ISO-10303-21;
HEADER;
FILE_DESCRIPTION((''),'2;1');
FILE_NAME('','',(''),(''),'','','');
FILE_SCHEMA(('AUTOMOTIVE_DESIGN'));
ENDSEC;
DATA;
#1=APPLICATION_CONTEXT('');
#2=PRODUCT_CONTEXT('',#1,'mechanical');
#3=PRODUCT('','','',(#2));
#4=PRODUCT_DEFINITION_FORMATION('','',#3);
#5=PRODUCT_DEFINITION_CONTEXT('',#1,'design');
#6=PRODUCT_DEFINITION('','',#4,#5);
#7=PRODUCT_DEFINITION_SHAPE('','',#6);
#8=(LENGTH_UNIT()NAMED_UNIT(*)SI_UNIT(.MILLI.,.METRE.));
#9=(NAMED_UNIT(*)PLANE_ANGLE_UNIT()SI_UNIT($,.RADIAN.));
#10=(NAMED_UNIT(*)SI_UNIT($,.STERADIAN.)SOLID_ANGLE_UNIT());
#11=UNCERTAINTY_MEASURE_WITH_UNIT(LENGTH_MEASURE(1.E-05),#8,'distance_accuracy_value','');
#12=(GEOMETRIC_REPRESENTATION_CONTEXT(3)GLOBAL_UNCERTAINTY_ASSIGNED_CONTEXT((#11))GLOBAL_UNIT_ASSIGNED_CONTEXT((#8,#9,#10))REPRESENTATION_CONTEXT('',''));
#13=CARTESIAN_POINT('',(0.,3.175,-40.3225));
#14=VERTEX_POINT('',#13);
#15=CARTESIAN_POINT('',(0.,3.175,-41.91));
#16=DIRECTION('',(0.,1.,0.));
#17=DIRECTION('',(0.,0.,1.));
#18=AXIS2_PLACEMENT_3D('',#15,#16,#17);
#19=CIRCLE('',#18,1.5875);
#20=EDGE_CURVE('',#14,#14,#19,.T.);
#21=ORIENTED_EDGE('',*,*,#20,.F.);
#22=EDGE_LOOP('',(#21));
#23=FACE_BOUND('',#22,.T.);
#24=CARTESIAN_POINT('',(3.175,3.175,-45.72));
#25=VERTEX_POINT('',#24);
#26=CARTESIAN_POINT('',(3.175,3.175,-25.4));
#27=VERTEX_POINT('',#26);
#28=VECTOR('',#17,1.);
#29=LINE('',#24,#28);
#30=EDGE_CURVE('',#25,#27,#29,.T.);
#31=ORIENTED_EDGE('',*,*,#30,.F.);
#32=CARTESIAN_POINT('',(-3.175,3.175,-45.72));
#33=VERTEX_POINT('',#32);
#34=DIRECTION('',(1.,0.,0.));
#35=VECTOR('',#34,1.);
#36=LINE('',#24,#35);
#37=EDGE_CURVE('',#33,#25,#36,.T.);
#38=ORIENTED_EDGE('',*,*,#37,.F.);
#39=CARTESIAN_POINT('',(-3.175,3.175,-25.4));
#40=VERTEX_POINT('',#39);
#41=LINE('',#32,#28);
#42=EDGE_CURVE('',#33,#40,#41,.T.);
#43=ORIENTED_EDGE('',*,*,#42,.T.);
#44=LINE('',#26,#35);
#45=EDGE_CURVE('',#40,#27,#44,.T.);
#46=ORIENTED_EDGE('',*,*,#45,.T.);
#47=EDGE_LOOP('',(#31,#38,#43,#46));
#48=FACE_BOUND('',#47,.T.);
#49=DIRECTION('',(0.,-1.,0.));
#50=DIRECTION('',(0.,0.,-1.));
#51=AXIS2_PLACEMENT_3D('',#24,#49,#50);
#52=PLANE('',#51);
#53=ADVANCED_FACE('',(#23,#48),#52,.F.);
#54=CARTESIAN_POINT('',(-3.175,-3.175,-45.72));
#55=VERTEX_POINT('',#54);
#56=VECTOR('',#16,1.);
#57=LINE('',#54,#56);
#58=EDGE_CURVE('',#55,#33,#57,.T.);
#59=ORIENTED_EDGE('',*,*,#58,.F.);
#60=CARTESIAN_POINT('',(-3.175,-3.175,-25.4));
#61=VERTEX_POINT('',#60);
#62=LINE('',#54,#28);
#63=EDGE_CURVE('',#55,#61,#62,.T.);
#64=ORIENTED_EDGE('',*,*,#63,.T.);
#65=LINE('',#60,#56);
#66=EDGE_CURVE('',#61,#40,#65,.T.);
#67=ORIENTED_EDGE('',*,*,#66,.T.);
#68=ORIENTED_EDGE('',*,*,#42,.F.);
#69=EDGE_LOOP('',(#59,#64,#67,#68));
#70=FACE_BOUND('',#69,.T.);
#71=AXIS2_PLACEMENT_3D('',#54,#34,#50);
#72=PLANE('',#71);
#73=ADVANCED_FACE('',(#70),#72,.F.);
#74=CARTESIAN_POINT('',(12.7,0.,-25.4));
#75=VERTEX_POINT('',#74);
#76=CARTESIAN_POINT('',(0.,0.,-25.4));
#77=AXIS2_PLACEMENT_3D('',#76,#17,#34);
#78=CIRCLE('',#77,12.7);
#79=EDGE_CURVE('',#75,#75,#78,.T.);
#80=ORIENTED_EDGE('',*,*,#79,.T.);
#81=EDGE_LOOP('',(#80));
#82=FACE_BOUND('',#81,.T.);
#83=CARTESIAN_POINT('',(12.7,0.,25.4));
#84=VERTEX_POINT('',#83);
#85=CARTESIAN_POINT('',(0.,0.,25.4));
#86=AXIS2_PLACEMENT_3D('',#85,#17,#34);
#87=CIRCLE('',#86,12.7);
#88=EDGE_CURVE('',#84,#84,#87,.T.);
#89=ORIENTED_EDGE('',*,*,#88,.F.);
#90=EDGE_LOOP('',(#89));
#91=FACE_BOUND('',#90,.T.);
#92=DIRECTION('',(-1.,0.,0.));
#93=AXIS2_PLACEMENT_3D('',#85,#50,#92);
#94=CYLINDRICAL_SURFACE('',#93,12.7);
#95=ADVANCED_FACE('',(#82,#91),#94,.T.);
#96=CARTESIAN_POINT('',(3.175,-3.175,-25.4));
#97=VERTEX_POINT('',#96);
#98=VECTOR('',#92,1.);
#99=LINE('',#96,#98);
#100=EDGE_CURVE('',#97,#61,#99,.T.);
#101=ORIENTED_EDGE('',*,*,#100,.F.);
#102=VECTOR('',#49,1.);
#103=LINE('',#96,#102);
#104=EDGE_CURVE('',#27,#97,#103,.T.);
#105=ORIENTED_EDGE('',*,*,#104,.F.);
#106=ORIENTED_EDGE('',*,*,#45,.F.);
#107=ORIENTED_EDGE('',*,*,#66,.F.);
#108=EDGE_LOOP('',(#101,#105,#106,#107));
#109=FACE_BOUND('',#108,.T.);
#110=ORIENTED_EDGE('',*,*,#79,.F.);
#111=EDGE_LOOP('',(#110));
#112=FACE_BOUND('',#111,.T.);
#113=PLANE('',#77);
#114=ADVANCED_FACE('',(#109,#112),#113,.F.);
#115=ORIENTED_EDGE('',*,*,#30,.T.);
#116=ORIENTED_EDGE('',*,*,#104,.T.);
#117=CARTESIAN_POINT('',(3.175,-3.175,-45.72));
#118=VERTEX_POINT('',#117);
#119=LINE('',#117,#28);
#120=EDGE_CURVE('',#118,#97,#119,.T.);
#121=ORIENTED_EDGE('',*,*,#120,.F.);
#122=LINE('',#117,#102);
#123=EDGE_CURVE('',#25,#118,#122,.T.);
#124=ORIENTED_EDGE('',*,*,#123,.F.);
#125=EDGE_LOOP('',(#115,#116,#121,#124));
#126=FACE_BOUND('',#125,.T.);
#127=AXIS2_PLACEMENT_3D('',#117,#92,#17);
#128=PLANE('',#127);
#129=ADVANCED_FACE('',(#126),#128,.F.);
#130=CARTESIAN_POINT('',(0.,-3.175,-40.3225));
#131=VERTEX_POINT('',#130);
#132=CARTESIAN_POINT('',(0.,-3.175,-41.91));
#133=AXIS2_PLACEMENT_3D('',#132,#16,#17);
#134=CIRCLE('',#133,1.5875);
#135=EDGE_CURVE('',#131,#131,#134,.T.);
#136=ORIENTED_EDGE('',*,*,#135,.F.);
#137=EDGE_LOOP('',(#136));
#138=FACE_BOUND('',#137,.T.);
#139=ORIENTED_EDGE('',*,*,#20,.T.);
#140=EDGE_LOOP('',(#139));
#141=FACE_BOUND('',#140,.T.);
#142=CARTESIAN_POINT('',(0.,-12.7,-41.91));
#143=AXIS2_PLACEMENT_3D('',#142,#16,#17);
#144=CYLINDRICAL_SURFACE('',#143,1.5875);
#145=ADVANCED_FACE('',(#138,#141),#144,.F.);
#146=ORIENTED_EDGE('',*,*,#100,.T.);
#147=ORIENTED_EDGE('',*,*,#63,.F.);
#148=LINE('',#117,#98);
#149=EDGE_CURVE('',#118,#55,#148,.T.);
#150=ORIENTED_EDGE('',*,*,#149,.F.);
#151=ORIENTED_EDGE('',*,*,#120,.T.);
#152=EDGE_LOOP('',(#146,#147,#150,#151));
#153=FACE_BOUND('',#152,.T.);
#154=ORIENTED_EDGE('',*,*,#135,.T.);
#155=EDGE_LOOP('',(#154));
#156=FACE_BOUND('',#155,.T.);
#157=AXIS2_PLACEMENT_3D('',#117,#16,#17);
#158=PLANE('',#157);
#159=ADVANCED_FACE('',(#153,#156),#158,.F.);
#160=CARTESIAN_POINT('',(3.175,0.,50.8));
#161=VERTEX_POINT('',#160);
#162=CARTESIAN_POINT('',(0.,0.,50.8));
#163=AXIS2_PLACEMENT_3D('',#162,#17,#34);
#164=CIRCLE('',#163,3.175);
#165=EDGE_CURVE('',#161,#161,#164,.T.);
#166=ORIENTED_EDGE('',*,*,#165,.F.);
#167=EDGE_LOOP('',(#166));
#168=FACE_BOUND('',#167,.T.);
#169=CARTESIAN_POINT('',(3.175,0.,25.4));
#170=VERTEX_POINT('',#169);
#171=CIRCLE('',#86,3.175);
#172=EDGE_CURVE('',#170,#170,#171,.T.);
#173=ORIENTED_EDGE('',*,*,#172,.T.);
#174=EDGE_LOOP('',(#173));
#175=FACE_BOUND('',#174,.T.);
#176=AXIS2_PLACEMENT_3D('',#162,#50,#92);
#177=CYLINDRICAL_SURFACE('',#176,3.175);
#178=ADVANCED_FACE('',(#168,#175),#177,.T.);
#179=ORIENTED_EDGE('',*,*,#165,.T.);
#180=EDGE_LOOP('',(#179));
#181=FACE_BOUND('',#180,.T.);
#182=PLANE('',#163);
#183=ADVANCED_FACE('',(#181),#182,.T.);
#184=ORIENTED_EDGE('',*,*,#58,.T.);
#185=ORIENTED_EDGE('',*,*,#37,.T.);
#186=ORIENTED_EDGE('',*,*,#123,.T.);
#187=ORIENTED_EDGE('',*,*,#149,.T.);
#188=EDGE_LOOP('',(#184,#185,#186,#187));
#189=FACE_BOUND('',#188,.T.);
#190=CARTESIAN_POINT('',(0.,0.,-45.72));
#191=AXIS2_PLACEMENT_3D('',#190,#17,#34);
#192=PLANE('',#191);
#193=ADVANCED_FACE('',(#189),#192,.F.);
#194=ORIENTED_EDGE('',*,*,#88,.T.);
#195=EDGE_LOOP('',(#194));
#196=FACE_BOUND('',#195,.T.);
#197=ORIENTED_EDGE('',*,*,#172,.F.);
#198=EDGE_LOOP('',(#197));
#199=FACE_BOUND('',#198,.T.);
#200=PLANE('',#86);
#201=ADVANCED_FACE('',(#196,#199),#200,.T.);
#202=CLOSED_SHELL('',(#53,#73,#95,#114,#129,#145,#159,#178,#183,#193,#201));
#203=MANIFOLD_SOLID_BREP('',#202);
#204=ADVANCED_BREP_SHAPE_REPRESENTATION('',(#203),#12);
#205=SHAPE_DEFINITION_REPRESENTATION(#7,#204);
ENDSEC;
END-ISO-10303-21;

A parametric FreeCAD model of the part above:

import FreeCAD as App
import Part
import Sketcher
from FreeCAD import Vector
Q = App.Units.Quantity

doc = App.newDocument("Part")
body = doc.addObject("PartDesign::Body", "Body")

# Sketch on XY plane
sketch1 = doc.addObject("Sketcher::SketchObject", "Sketch")
body.addObject(sketch1)
sketch1.AttachmentSupport = (doc.XY_Plane, [""])
sketch1.MapMode = "FlatFace"
sketch1.addGeometry(Part.Circle(Vector(0, 0, 0), Vector(0, 0, 1), 13), False)
sketch1.addConstraint(Sketcher.Constraint("Coincident", 0, 3, -1, 1))
sketch1.addConstraint(Sketcher.Constraint("Diameter", 0, Q("1 in")))
pad1 = doc.addObject("PartDesign::Pad", "Pad")
body.addObject(pad1)
pad1.Profile = sketch1
pad1.Length = Q("2 in")
pad1.Midplane = True

# Sketch on XY plane
sketch2 = doc.addObject("Sketcher::SketchObject", "Sketch001")
body.addObject(sketch2)
sketch2.AttachmentSupport = (doc.XY_Plane, [""])
sketch2.MapMode = "FlatFace"
sketch2.AttachmentOffset = App.Placement(Vector(0, 0, 1 * 25.4), App.Rotation())
sketch2.addGeometry(Part.Circle(Vector(0, 0, 0), Vector(0, 0, 1), 3.2), False)
sketch2.addConstraint(Sketcher.Constraint("Coincident", 0, 3, -1, 1))
sketch2.addConstraint(Sketcher.Constraint("Diameter", 0, Q("0.25 in")))
pad2 = doc.addObject("PartDesign::Pad", "Pad001")
body.addObject(pad2)
pad2.Profile = sketch2
pad2.Length = Q("1 in")

# Sketch on XY plane
sketch3 = doc.addObject("Sketcher::SketchObject", "Sketch002")
body.addObject(sketch3)
sketch3.AttachmentSupport = (doc.XY_Plane, [""])
sketch3.MapMode = "FlatFace"
sketch3.AttachmentOffset = App.Placement(Vector(0, 0, -1 * 25.4), App.Rotation())
sketch3.addGeometry(Part.LineSegment(Vector(3, 3, 0), Vector(3, -3, 0)), False)
sketch3.addGeometry(Part.LineSegment(Vector(3, -3, 0), Vector(-3, -3, 0)), False)
sketch3.addGeometry(Part.LineSegment(Vector(-3, -3, 0), Vector(-3, 3, 0)), False)
sketch3.addGeometry(Part.LineSegment(Vector(-3, 3, 0), Vector(3, 3, 0)), False)
sketch3.addConstraint(Sketcher.Constraint("Coincident", 0, 2, 1, 1))
sketch3.addConstraint(Sketcher.Constraint("Coincident", 1, 2, 2, 1))
sketch3.addConstraint(Sketcher.Constraint("Coincident", 2, 2, 3, 1))
sketch3.addConstraint(Sketcher.Constraint("Coincident", 3, 2, 0, 1))
sketch3.addConstraint(Sketcher.Constraint("Vertical", 0))
sketch3.addConstraint(Sketcher.Constraint("Horizontal", 1))
sketch3.addConstraint(Sketcher.Constraint("Vertical", 2))
sketch3.addConstraint(Sketcher.Constraint("Horizontal", 3))
sketch3.addConstraint(Sketcher.Constraint("Symmetric", 0, 2, 2, 2, -1, 1))
sketch3.addConstraint(Sketcher.Constraint("Equal", 3, 0))
sketch3.addConstraint(Sketcher.Constraint("DistanceX", 1, 2, 1, 1, Q("0.25 in")))
pad3 = doc.addObject("PartDesign::Pad", "Pad002")
body.addObject(pad3)
pad3.Profile = sketch3
pad3.Length = Q("0.8 in")
pad3.Reversed = True

# Sketch on XZ plane
sketch4 = doc.addObject("Sketcher::SketchObject", "Sketch003")
body.addObject(sketch4)
sketch4.AttachmentSupport = (doc.XZ_Plane, [""])
sketch4.MapMode = "FlatFace"
sketch4.AttachmentOffset = App.Placement(Vector(0, 0, -0.125 * 25.4), App.Rotation())
sketch4.addGeometry(Part.Circle(Vector(0, -41.9, 0), Vector(0, 0, 1), 1.6), False)
sketch4.addConstraint(Sketcher.Constraint("PointOnObject", 0, 3, -2))
sketch4.addConstraint(Sketcher.Constraint("Diameter", 0, Q("0.125 in")))
sketch4.addConstraint(Sketcher.Constraint("DistanceY", 0, 3, -1, 1, Q("1.65 in")))
pocket1 = doc.addObject("PartDesign::Pocket", "Pocket")
body.addObject(pocket1)
pocket1.Profile = sketch4
pocket1.Type = "ThroughAll"
pocket1.Reversed = True

doc.recompute()
